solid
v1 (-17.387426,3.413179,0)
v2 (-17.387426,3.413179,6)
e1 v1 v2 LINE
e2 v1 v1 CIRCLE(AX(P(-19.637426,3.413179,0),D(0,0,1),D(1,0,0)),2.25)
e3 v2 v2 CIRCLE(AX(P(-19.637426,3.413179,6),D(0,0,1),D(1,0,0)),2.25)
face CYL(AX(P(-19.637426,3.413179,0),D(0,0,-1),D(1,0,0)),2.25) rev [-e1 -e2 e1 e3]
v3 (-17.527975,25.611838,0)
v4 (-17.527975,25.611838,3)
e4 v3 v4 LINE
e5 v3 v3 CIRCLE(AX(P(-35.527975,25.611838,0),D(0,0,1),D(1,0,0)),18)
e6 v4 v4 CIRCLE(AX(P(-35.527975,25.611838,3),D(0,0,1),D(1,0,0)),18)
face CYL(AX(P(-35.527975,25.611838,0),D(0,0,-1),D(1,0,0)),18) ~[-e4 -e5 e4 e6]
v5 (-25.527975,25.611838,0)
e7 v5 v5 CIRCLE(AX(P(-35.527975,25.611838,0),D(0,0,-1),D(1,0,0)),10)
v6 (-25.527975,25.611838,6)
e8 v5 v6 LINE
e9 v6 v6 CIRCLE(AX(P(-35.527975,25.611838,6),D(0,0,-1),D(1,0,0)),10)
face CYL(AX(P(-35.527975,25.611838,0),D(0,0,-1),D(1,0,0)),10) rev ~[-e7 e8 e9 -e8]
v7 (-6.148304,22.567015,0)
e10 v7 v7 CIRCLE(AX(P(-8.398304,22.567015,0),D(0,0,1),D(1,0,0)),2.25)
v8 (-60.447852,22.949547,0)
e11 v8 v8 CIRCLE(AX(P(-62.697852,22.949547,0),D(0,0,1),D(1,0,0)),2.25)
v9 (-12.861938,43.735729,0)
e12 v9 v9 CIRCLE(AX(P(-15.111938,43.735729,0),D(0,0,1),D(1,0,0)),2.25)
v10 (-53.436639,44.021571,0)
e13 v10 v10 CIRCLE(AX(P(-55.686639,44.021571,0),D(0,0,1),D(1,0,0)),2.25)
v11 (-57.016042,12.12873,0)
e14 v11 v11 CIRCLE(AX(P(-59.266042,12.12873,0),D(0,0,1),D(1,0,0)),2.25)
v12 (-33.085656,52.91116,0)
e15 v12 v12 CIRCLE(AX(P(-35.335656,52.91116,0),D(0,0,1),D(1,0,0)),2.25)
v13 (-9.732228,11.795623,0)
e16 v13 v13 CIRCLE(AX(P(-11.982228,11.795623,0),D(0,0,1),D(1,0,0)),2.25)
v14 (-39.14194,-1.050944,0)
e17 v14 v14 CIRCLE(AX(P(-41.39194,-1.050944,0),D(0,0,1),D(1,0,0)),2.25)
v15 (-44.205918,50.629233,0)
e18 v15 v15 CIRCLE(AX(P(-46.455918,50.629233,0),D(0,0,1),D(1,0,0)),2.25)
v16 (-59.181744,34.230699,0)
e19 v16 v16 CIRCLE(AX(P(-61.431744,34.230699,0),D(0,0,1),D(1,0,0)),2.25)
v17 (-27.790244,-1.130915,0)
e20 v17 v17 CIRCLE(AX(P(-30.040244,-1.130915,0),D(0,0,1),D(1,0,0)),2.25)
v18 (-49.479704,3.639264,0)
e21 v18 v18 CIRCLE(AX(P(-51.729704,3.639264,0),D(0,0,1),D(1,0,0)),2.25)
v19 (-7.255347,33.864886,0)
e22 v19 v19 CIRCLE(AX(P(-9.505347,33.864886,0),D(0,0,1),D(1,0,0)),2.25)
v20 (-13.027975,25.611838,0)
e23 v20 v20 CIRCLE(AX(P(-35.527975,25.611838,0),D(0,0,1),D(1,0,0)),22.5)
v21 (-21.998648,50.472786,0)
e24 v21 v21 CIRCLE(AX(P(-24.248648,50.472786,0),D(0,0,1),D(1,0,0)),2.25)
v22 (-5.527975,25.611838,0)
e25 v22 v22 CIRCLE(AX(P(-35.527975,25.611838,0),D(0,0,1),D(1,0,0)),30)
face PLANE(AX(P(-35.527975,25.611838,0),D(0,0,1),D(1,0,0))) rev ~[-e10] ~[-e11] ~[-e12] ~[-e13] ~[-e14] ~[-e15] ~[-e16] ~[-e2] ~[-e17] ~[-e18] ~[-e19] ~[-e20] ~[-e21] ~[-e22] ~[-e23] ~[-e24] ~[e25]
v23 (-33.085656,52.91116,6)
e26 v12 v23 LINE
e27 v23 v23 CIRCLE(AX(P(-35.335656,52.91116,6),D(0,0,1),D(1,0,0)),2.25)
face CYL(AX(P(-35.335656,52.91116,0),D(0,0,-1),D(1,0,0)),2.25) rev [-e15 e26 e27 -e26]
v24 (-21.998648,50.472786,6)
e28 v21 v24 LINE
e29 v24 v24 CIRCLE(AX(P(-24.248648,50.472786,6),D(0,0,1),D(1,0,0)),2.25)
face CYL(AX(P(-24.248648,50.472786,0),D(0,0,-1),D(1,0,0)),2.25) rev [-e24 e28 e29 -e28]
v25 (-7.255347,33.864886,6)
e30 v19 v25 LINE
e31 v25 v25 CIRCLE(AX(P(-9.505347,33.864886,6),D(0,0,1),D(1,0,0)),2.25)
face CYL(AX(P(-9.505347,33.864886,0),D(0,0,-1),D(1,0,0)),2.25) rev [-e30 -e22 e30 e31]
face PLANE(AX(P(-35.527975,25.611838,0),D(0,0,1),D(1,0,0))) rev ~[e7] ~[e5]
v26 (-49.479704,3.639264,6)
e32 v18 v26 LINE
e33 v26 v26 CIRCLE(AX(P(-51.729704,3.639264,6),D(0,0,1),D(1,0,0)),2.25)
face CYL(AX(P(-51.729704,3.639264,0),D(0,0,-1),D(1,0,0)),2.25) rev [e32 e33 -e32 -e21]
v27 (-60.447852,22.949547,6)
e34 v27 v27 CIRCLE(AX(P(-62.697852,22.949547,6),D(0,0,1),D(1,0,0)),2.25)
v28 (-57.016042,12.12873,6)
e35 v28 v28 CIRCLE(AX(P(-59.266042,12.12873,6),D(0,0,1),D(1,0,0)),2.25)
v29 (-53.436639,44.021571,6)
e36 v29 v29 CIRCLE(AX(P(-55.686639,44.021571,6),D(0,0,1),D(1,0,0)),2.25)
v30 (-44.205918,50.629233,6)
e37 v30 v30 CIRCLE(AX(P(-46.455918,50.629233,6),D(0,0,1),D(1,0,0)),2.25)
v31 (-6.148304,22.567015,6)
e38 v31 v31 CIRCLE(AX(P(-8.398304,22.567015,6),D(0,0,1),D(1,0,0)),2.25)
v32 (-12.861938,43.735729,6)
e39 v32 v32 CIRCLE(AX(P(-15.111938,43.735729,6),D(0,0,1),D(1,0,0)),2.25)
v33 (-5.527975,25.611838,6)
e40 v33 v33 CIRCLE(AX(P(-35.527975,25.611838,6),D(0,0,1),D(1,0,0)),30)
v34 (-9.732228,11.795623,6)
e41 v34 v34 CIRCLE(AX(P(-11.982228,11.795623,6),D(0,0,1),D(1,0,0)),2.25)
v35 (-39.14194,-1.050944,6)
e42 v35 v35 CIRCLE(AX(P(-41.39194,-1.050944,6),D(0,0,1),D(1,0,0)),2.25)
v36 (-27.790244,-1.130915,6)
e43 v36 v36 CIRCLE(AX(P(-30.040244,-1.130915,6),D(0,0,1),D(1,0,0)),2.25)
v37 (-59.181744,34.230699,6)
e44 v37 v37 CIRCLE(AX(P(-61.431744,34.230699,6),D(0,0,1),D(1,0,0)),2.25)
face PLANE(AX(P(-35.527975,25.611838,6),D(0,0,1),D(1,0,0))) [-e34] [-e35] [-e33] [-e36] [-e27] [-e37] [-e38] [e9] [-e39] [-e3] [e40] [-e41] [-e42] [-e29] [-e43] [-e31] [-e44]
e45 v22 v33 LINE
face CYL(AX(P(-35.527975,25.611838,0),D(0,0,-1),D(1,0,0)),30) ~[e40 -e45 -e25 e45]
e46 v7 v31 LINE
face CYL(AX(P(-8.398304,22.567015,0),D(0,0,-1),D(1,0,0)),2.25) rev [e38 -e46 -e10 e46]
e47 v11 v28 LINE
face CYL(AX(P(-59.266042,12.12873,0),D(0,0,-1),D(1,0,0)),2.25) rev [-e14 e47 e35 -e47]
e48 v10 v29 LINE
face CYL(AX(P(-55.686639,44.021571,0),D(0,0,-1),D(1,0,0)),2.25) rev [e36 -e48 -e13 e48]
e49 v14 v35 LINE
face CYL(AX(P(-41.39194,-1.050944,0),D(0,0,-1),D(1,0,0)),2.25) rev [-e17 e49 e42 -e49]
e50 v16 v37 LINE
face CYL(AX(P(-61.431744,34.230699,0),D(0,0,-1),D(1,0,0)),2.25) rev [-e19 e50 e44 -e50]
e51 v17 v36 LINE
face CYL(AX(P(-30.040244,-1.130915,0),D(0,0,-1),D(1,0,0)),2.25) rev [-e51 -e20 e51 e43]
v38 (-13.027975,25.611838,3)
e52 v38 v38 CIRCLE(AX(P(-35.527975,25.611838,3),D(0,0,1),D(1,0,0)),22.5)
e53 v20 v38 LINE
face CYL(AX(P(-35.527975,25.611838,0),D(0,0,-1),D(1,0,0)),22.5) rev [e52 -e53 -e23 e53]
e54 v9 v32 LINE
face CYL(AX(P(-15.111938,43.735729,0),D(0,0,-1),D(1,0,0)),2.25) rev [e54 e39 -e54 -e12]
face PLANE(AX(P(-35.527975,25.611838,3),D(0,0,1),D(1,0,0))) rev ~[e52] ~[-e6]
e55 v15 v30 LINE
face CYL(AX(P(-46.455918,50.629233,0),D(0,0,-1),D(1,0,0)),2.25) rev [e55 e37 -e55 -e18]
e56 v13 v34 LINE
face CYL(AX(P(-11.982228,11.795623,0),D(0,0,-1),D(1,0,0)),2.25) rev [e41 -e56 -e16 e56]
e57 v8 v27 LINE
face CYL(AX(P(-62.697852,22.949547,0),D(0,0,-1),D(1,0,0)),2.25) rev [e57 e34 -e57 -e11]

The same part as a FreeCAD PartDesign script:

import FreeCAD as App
import Part
import Sketcher

V = App.Vector
Q = App.Units.Quantity

doc = App.newDocument("Part")
body = doc.addObject("PartDesign::Body", "Body")

# Sketch on XY plane
sketch1 = body.newObject("Sketcher::SketchObject", "Sketch")
sketch1.AttachmentSupport = (doc.getObject("XY_Plane"), [""])
sketch1.MapMode = "FlatFace"
sketch1.addGeometry([
    Part.Circle(V(-35.527975, 25.611838, 0), V(0, 0, 1), 22.5),
    Part.Circle(V(-35.527975, 25.611838, 0), V(0, 0, 1), 18),
], False)
sketch1.addConstraint([
    Sketcher.Constraint("Coincident", 1, 3, 0, 3),
    Sketcher.Constraint("Diameter", 0, Q("45 mm")),
    Sketcher.Constraint("Diameter", 1, Q("36 mm")),
    Sketcher.Constraint("DistanceX", 0, 3, -1, 1, Q("35.527975 mm")),
    Sketcher.Constraint("DistanceY", -1, 1, 0, 3, Q("25.611838 mm")),
])
pad1 = body.newObject("PartDesign::Pad", "Pad")
pad1.Profile = sketch1
pad1.Length = 3
body2 = doc.addObject("PartDesign::Body", "Body001")

# Sketch on XY plane
sketch2 = body2.newObject("Sketcher::SketchObject", "Sketch001")
sketch2.AttachmentSupport = (doc.getObject("XY_Plane001"), [""])
sketch2.MapMode = "FlatFace"
sketch2.addGeometry([
    Part.Circle(V(-35.527975, 25.611838, 0), V(0, 0, 1), 30),  # 0
    Part.Circle(V(-51.729704, 3.639264, 0), V(0, 0, 1), 2.25),  # 1
    Part.Circle(V(-41.39194, -1.050944, 0), V(0, 0, 1), 2.25),  # 2
    Part.Circle(V(-59.266042, 12.12873, 0), V(0, 0, 1), 2.25),  # 3
    Part.Circle(V(-62.697852, 22.949547, 0), V(0, 0, 1), 2.25),  # 4
    Part.Circle(V(-30.040244, -1.130915, 0), V(0, 0, 1), 2.25),  # 5
    Part.Circle(V(-19.637426, 3.413179, 0), V(0, 0, 1), 2.25),  # 6
    Part.Circle(V(-11.982228, 11.795623, 0), V(0, 0, 1), 2.25),  # 7
    Part.Circle(V(-8.398304, 22.567015, 0), V(0, 0, 1), 2.25),  # 8
    Part.Circle(V(-61.431744, 34.230699, 0), V(0, 0, 1), 2.25),  # 9
    Part.Circle(V(-55.686639, 44.021571, 0), V(0, 0, 1), 2.25),  # 10
    Part.Circle(V(-46.455918, 50.629233, 0), V(0, 0, 1), 2.25),  # 11
    Part.Circle(V(-9.505347, 33.864886, 0), V(0, 0, 1), 2.25),  # 12
    Part.Circle(V(-35.335656, 52.91116, 0), V(0, 0, 1), 2.25),  # 13
    Part.Circle(V(-24.248648, 50.472786, 0), V(0, 0, 1), 2.25),  # 14
    Part.Circle(V(-15.111938, 43.735729, 0), V(0, 0, 1), 2.25),  # 15
], False)
sketch2.addConstraint([
    Sketcher.Constraint("Equal", 1, 2),
    Sketcher.Constraint("Equal", 2, 3),
    Sketcher.Constraint("Equal", 3, 4),
    Sketcher.Constraint("Equal", 4, 5),
    Sketcher.Constraint("Equal", 5, 6),
    Sketcher.Constraint("Equal", 6, 7),
    Sketcher.Constraint("Equal", 7, 8),
    Sketcher.Constraint("Equal", 8, 9),
    Sketcher.Constraint("Equal", 9, 10),
    Sketcher.Constraint("Equal", 10, 11),
    Sketcher.Constraint("Equal", 11, 12),
    Sketcher.Constraint("Equal", 12, 13),
    Sketcher.Constraint("Equal", 13, 14),
    Sketcher.Constraint("Equal", 14, 15),
    Sketcher.Constraint("Diameter", 0, Q("60 mm")),
    Sketcher.Constraint("Diameter", 1, Q("4.5 mm")),
    Sketcher.Constraint("DistanceY", -1, 1, 9, 3, Q("34.230699 mm")),
    Sketcher.Constraint("DistanceX", 3, 3, 2, 3, Q("17.874101 mm")),
    Sketcher.Constraint("DistanceX", 3, 3, 5, 3, Q("29.225798 mm")),
    Sketcher.Constraint("DistanceX", 14, 3, 12, 3, Q("14.743301 mm")),
    Sketcher.Constraint("DistanceY", 12, 3, 14, 3, Q("16.607901 mm")),
    Sketcher.Constraint("DistanceX", 2, 3, -1, 1, Q("41.39194 mm")),
    Sketcher.Constraint("DistanceY", -1, 1, 3, 3, Q("12.12873 mm")),
    Sketcher.Constraint("DistanceY", -1, 1, 6, 3, Q("3.413179 mm")),
    Sketcher.Constraint("DistanceX", 7, 3, -1, 1, Q("11.982228 mm")),
    Sketcher.Constraint("DistanceX", 10, 3, -1, 1, Q("55.686639 mm")),
    Sketcher.Constraint("DistanceY", -1, 1, 10, 3, Q("44.021571 mm")),
    Sketcher.Constraint("DistanceY", -1, 1, 13, 3, Q("52.91116 mm")),
    Sketcher.Constraint("DistanceX", 14, 3, -1, 1, Q("24.248648 mm")),
    Sketcher.Constraint("DistanceX", 15, 3, -1, 1, Q("15.111938 mm")),
    Sketcher.Constraint("DistanceY", -1, 1, 15, 3, Q("43.735729 mm")),
    Sketcher.Constraint("DistanceX", 1, 3, 0, 3, Q("16.201729 mm")),
    Sketcher.Constraint("DistanceY", 2, 3, 1, 3, Q("4.690208 mm")),
    Sketcher.Constraint("DistanceY", 2, 3, 0, 3, Q("26.662781 mm")),
    Sketcher.Constraint("DistanceX", 4, 3, 3, 3, Q("3.43181 mm")),
    Sketcher.Constraint("DistanceX", 4, 3, 1, 3, Q("10.968148 mm")),
    Sketcher.Constraint("DistanceY", 4, 3, 0, 3, Q("2.66229 mm")),
    Sketcher.Constraint("DistanceY", 5, 3, 2, 3, Q("0.079971 mm")),
    Sketcher.Constraint("DistanceX", 0, 3, 6, 3, Q("15.89055 mm")),
    Sketcher.Constraint("DistanceY", 6, 3, 0, 3, Q("22.198658 mm")),
    Sketcher.Constraint("DistanceY", 1, 3, 7, 3, Q("8.156359 mm")),
    Sketcher.Constraint("DistanceX", 6, 3, 8, 3, Q("11.239122 mm")),
    Sketcher.Constraint("DistanceY", 5, 3, 8, 3, Q("23.69793 mm")),
    Sketcher.Constraint("DistanceX", 4, 3, 9, 3, Q("1.266108 mm")),
    Sketcher.Constraint("DistanceX", 10, 3, 11, 3, Q("9.230721 mm")),
    Sketcher.Constraint("DistanceY", 8, 3, 12, 3, Q("11.29787 mm")),
    Sketcher.Constraint("DistanceX", 11, 3, 13, 3, Q("11.120262 mm")),
    Sketcher.Constraint("DistanceY", -1, 1, 11, 3, Q("50.629233 mm")),
])
pad2 = body2.newObject("PartDesign::Pad", "Pad001")
pad2.Profile = sketch2
pad2.Length = 6
body3 = doc.addObject("PartDesign::Body", "Body002")

# Sketch on XY plane
sketch3 = body3.newObject("Sketcher::SketchObject", "Sketch002")
sketch3.AttachmentSupport = (doc.getObject("XY_Plane002"), [""])
sketch3.MapMode = "FlatFace"
sketch3.addGeometry([
    Part.Circle(V(-35.527975, 25.611838, 0), V(0, 0, 1), 22.5),
    Part.Circle(V(-35.527975, 25.611838, 0), V(0, 0, 1), 18),
], False)
sketch3.addConstraint([
    Sketcher.Constraint("Coincident", 1, 3, 0, 3),
    Sketcher.Constraint("Diameter", 0, Q("45 mm")),
    Sketcher.Constraint("Diameter", 1, Q("36 mm")),
    Sketcher.Constraint("DistanceX", 0, 3, -1, 1, Q("35.527975 mm")),
    Sketcher.Constraint("DistanceY", -1, 1, 0, 3, Q("25.611838 mm")),
])
pad3 = body3.newObject("PartDesign::Pad", "Pad002")
pad3.Profile = sketch3
pad3.Length = 3
doc.recompute()

body4 = doc.addObject("PartDesign::Body", "Body003")
body4.BaseFeature = body3
boolean = body.newObject("PartDesign::Boolean", "Boolean")
boolean.Type = "Cut"
boolean.addObjects([body4])
doc.recompute()

boolean2 = body2.newObject("PartDesign::Boolean", "Boolean001")
boolean2.Type = "Cut"
boolean2.addObjects([body3])

# Sketch on XY plane
sketch4 = body2.newObject("Sketcher::SketchObject", "Sketch003")
sketch4.AttachmentSupport = (doc.getObject("XY_Plane001"), [""])
sketch4.MapMode = "FlatFace"
sketch4.addGeometry(Part.Circle(V(-35.527975, 25.611838, 0), V(0, 0, 1), 10), False)
sketch4.addConstraint([
    Sketcher.Constraint("Diameter", 0, Q("20 mm")),
    Sketcher.Constraint("DistanceX", 0, 3, -1, 1, Q("35.527975 mm")),
    Sketcher.Constraint("DistanceY", -1, 1, 0, 3, Q("25.611838 mm")),
])
pocket1 = body2.newObject("PartDesign::Pocket", "Pocket")
pocket1.Profile = sketch4
pocket1.Length = 10
pocket1.Reversed = True

doc.recompute()
